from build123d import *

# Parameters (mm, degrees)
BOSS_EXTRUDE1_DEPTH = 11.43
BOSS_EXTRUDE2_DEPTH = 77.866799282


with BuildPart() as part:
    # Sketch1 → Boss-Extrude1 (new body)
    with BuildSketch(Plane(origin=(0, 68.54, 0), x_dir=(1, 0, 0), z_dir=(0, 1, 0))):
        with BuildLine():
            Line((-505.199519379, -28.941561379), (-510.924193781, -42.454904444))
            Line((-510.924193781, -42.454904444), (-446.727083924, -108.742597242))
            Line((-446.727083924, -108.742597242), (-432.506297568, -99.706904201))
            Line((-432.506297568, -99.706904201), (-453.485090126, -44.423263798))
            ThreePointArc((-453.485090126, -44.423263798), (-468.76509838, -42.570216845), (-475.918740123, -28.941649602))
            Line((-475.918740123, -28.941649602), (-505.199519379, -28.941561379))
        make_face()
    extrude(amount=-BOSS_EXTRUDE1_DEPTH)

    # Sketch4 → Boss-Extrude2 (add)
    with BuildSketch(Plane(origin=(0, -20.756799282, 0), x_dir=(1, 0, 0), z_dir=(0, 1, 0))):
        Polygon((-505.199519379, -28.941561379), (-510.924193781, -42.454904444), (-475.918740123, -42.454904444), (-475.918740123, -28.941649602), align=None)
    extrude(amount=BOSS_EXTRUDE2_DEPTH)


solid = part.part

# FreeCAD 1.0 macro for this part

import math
import FreeCAD as App
import Part
import Sketcher
Q = App.Units.Quantity

doc = App.newDocument("Part")
body = doc.addObject("PartDesign::Body", "Body")

# Sketch on XZ plane
sketch1 = body.newObject("Sketcher::SketchObject", "Sketch")
sketch1.AttachmentSupport = (doc.getObject("XZ_Plane"), [""])
sketch1.MapMode = "FlatFace"
sketch1.AttachmentOffset = App.Placement(App.Vector(0, 0, -68.54), App.Rotation())
sketch1.addGeometry([
    Part.LineSegment(App.Vector(-505, 29, 0), App.Vector(-511, 42, 0)),  # 0
    Part.LineSegment(App.Vector(-511, 42, 0), App.Vector(-447, 109, 0)),  # 1
    Part.LineSegment(App.Vector(-447, 109, 0), App.Vector(-433, 100, 0)),  # 2
    Part.LineSegment(App.Vector(-433, 100, 0), App.Vector(-453, 44, 0)),  # 3
    Part.ArcOfCircle(Part.Circle(App.Vector(-459, 29, 0), App.Vector(0, 0, 1), 17), math.radians(69), math.radians(180)),  # 4
    Part.LineSegment(App.Vector(-476, 29, 0), App.Vector(-505, 29, 0)),  # 5
], False)
sketch1.addConstraint([
    Sketcher.Constraint("Coincident", 0, 2, 1, 1),
    Sketcher.Constraint("Coincident", 1, 2, 2, 1),
    Sketcher.Constraint("Coincident", 2, 2, 3, 1),
    Sketcher.Constraint("Coincident", 3, 2, 4, 1),
    Sketcher.Constraint("Coincident", 4, 2, 5, 1),
    Sketcher.Constraint("Coincident", 5, 2, 0, 1),
    Sketcher.Constraint("Radius", 4, 16.558774),
    Sketcher.Constraint("DistanceY", -1, 1, 4, 3, 28.941699),
    Sketcher.Constraint("DistanceY", 0, 2, 2, 2, 57.252),
    Sketcher.Constraint("Distance", 0, 14.67591),
    Sketcher.Constraint("Distance", 1, 92.27853),
    Sketcher.Constraint("Distance", 5, 29.280779),
    Sketcher.Constraint("DistanceX", 3, 2, -1, 1, 453.48509),
    Sketcher.Constraint("DistanceX", 4, 2, -1, 1, 475.91874),
    Sketcher.Constraint("DistanceY", -1, 1, 4, 2, 28.94165),
    Sketcher.Constraint("DistanceY", -1, 1, 5, 2, 28.941561),
    Sketcher.Constraint("DistanceX", 0, 2, 1, 2, 64.19711),
    Sketcher.Constraint("DistanceX", 4, 3, 2, 2, 26.853668),
    Sketcher.Constraint("DistanceY", 0, 2, 3, 2, 1.968359),
])
pad1 = body.newObject("PartDesign::Pad", "Pad")
pad1.Profile = sketch1
pad1.Length = Q("0.45 in")

# Sketch on XZ plane
sketch2 = body.newObject("Sketcher::SketchObject", "Sketch001")
sketch2.AttachmentSupport = (doc.getObject("XZ_Plane"), [""])
sketch2.MapMode = "FlatFace"
sketch2.AttachmentOffset = App.Placement(App.Vector(0, 0, 20.756799), App.Rotation())
sketch2.addGeometry([
    Part.LineSegment(App.Vector(-505, 29, 0), App.Vector(-511, 42, 0)),
    Part.LineSegment(App.Vector(-511, 42, 0), App.Vector(-476, 42, 0)),
    Part.LineSegment(App.Vector(-476, 42, 0), App.Vector(-476, 29, 0)),
    Part.LineSegment(App.Vector(-476, 29, 0), App.Vector(-505, 29, 0)),
], False)
sketch2.addConstraint([
    Sketcher.Constraint("Coincident", 0, 2, 1, 1),
    Sketcher.Constraint("Coincident", 1, 2, 2, 1),
    Sketcher.Constraint("Coincident", 2, 2, 3, 1),
    Sketcher.Constraint("Coincident", 3, 2, 0, 1),
    Sketcher.Constraint("Horizontal", 1),
    Sketcher.Constraint("Vertical", 2),
    Sketcher.Constraint("Distance", 0, 14.67591),
    Sketcher.Constraint("Distance", 3, 29.280779),
    Sketcher.Constraint("DistanceX", 1, 1, 1, 2, 35.005454),
    Sketcher.Constraint("DistanceY", 2, 2, 2, 1, 13.513255),
    Sketcher.Constraint("DistanceX", 1, 2, -1, 1, 475.91874),
    Sketcher.Constraint("DistanceY", -1, 1, 2, 2, 28.94165),
])
pad2 = body.newObject("PartDesign::Pad", "Pad001")
pad2.Profile = sketch2
pad2.Length = 77.866799
pad2.Reversed = True

doc.recompute()
